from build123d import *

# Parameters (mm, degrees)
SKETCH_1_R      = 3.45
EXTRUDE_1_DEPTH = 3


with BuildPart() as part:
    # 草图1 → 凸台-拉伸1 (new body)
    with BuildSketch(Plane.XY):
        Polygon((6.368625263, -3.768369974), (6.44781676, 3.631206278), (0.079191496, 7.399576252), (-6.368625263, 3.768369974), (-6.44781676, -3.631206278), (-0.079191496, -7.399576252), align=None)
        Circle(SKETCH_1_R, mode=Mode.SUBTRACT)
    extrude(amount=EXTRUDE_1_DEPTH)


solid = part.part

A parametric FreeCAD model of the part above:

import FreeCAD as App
import Part
import Sketcher

V = App.Vector


def add_polygon(sketch, points):
    """Adds a closed chain of lines whose ends are joined by coincident constraints."""
    first, n = sketch.GeometryCount, len(points)
    for a, b in zip(points, points[1:] + points[:1]):
        sketch.addGeometry(Part.LineSegment(App.Vector(*a, 0), App.Vector(*b, 0)), False)
    for i in range(n):
        sketch.addConstraint(Sketcher.Constraint("Coincident", first + i, 2, first + (i + 1) % n, 1))

doc = App.newDocument("Part")
body = doc.addObject("PartDesign::Body", "Body")

sketch1 = body.newObject("Sketcher::SketchObject", "Sketch")
sketch1.AttachmentSupport = (doc.getObject("XY_Plane"), [""])
sketch1.MapMode = "FlatFace"
add_polygon(sketch1, [(6.4, -3.8), (6.4, 3.6), (0.1, 7.4), (-6.4, 3.8), (-6.4, -3.6), (-0.1, -7.4)])
sketch1.addGeometry(Part.Circle(V(0, 0, 0), V(0, 0, 1), 3.5), False)
sketch1.addConstraint([
    Sketcher.Constraint("Coincident", 6, 3, -1, 1),
    Sketcher.Constraint("Symmetric", 0, 2, 3, 2, -1, 1),
    Sketcher.Constraint("Symmetric", 1, 2, 4, 2, -1, 1),
    Sketcher.Constraint("Symmetric", 2, 2, 5, 2, -1, 1),
    Sketcher.Constraint("Equal", 0, 1),
    Sketcher.Constraint("Equal", 1, 2),
    Sketcher.Constraint("Diameter", 6, 6.9),
    Sketcher.Constraint("Distance", 0, 7.4),
    Sketcher.Constraint("DistanceX", -1, 1, 1, 2, 0.079191),
    Sketcher.Constraint("DistanceY", -1, 1, 2, 2, 3.76837),
    Sketcher.Constraint("DistanceY", 0, 2, 1, 2, 3.76837),
])
pad1 = body.newObject("PartDesign::Pad", "Pad")
pad1.Profile = sketch1
pad1.Length = 3

doc.recompute()
